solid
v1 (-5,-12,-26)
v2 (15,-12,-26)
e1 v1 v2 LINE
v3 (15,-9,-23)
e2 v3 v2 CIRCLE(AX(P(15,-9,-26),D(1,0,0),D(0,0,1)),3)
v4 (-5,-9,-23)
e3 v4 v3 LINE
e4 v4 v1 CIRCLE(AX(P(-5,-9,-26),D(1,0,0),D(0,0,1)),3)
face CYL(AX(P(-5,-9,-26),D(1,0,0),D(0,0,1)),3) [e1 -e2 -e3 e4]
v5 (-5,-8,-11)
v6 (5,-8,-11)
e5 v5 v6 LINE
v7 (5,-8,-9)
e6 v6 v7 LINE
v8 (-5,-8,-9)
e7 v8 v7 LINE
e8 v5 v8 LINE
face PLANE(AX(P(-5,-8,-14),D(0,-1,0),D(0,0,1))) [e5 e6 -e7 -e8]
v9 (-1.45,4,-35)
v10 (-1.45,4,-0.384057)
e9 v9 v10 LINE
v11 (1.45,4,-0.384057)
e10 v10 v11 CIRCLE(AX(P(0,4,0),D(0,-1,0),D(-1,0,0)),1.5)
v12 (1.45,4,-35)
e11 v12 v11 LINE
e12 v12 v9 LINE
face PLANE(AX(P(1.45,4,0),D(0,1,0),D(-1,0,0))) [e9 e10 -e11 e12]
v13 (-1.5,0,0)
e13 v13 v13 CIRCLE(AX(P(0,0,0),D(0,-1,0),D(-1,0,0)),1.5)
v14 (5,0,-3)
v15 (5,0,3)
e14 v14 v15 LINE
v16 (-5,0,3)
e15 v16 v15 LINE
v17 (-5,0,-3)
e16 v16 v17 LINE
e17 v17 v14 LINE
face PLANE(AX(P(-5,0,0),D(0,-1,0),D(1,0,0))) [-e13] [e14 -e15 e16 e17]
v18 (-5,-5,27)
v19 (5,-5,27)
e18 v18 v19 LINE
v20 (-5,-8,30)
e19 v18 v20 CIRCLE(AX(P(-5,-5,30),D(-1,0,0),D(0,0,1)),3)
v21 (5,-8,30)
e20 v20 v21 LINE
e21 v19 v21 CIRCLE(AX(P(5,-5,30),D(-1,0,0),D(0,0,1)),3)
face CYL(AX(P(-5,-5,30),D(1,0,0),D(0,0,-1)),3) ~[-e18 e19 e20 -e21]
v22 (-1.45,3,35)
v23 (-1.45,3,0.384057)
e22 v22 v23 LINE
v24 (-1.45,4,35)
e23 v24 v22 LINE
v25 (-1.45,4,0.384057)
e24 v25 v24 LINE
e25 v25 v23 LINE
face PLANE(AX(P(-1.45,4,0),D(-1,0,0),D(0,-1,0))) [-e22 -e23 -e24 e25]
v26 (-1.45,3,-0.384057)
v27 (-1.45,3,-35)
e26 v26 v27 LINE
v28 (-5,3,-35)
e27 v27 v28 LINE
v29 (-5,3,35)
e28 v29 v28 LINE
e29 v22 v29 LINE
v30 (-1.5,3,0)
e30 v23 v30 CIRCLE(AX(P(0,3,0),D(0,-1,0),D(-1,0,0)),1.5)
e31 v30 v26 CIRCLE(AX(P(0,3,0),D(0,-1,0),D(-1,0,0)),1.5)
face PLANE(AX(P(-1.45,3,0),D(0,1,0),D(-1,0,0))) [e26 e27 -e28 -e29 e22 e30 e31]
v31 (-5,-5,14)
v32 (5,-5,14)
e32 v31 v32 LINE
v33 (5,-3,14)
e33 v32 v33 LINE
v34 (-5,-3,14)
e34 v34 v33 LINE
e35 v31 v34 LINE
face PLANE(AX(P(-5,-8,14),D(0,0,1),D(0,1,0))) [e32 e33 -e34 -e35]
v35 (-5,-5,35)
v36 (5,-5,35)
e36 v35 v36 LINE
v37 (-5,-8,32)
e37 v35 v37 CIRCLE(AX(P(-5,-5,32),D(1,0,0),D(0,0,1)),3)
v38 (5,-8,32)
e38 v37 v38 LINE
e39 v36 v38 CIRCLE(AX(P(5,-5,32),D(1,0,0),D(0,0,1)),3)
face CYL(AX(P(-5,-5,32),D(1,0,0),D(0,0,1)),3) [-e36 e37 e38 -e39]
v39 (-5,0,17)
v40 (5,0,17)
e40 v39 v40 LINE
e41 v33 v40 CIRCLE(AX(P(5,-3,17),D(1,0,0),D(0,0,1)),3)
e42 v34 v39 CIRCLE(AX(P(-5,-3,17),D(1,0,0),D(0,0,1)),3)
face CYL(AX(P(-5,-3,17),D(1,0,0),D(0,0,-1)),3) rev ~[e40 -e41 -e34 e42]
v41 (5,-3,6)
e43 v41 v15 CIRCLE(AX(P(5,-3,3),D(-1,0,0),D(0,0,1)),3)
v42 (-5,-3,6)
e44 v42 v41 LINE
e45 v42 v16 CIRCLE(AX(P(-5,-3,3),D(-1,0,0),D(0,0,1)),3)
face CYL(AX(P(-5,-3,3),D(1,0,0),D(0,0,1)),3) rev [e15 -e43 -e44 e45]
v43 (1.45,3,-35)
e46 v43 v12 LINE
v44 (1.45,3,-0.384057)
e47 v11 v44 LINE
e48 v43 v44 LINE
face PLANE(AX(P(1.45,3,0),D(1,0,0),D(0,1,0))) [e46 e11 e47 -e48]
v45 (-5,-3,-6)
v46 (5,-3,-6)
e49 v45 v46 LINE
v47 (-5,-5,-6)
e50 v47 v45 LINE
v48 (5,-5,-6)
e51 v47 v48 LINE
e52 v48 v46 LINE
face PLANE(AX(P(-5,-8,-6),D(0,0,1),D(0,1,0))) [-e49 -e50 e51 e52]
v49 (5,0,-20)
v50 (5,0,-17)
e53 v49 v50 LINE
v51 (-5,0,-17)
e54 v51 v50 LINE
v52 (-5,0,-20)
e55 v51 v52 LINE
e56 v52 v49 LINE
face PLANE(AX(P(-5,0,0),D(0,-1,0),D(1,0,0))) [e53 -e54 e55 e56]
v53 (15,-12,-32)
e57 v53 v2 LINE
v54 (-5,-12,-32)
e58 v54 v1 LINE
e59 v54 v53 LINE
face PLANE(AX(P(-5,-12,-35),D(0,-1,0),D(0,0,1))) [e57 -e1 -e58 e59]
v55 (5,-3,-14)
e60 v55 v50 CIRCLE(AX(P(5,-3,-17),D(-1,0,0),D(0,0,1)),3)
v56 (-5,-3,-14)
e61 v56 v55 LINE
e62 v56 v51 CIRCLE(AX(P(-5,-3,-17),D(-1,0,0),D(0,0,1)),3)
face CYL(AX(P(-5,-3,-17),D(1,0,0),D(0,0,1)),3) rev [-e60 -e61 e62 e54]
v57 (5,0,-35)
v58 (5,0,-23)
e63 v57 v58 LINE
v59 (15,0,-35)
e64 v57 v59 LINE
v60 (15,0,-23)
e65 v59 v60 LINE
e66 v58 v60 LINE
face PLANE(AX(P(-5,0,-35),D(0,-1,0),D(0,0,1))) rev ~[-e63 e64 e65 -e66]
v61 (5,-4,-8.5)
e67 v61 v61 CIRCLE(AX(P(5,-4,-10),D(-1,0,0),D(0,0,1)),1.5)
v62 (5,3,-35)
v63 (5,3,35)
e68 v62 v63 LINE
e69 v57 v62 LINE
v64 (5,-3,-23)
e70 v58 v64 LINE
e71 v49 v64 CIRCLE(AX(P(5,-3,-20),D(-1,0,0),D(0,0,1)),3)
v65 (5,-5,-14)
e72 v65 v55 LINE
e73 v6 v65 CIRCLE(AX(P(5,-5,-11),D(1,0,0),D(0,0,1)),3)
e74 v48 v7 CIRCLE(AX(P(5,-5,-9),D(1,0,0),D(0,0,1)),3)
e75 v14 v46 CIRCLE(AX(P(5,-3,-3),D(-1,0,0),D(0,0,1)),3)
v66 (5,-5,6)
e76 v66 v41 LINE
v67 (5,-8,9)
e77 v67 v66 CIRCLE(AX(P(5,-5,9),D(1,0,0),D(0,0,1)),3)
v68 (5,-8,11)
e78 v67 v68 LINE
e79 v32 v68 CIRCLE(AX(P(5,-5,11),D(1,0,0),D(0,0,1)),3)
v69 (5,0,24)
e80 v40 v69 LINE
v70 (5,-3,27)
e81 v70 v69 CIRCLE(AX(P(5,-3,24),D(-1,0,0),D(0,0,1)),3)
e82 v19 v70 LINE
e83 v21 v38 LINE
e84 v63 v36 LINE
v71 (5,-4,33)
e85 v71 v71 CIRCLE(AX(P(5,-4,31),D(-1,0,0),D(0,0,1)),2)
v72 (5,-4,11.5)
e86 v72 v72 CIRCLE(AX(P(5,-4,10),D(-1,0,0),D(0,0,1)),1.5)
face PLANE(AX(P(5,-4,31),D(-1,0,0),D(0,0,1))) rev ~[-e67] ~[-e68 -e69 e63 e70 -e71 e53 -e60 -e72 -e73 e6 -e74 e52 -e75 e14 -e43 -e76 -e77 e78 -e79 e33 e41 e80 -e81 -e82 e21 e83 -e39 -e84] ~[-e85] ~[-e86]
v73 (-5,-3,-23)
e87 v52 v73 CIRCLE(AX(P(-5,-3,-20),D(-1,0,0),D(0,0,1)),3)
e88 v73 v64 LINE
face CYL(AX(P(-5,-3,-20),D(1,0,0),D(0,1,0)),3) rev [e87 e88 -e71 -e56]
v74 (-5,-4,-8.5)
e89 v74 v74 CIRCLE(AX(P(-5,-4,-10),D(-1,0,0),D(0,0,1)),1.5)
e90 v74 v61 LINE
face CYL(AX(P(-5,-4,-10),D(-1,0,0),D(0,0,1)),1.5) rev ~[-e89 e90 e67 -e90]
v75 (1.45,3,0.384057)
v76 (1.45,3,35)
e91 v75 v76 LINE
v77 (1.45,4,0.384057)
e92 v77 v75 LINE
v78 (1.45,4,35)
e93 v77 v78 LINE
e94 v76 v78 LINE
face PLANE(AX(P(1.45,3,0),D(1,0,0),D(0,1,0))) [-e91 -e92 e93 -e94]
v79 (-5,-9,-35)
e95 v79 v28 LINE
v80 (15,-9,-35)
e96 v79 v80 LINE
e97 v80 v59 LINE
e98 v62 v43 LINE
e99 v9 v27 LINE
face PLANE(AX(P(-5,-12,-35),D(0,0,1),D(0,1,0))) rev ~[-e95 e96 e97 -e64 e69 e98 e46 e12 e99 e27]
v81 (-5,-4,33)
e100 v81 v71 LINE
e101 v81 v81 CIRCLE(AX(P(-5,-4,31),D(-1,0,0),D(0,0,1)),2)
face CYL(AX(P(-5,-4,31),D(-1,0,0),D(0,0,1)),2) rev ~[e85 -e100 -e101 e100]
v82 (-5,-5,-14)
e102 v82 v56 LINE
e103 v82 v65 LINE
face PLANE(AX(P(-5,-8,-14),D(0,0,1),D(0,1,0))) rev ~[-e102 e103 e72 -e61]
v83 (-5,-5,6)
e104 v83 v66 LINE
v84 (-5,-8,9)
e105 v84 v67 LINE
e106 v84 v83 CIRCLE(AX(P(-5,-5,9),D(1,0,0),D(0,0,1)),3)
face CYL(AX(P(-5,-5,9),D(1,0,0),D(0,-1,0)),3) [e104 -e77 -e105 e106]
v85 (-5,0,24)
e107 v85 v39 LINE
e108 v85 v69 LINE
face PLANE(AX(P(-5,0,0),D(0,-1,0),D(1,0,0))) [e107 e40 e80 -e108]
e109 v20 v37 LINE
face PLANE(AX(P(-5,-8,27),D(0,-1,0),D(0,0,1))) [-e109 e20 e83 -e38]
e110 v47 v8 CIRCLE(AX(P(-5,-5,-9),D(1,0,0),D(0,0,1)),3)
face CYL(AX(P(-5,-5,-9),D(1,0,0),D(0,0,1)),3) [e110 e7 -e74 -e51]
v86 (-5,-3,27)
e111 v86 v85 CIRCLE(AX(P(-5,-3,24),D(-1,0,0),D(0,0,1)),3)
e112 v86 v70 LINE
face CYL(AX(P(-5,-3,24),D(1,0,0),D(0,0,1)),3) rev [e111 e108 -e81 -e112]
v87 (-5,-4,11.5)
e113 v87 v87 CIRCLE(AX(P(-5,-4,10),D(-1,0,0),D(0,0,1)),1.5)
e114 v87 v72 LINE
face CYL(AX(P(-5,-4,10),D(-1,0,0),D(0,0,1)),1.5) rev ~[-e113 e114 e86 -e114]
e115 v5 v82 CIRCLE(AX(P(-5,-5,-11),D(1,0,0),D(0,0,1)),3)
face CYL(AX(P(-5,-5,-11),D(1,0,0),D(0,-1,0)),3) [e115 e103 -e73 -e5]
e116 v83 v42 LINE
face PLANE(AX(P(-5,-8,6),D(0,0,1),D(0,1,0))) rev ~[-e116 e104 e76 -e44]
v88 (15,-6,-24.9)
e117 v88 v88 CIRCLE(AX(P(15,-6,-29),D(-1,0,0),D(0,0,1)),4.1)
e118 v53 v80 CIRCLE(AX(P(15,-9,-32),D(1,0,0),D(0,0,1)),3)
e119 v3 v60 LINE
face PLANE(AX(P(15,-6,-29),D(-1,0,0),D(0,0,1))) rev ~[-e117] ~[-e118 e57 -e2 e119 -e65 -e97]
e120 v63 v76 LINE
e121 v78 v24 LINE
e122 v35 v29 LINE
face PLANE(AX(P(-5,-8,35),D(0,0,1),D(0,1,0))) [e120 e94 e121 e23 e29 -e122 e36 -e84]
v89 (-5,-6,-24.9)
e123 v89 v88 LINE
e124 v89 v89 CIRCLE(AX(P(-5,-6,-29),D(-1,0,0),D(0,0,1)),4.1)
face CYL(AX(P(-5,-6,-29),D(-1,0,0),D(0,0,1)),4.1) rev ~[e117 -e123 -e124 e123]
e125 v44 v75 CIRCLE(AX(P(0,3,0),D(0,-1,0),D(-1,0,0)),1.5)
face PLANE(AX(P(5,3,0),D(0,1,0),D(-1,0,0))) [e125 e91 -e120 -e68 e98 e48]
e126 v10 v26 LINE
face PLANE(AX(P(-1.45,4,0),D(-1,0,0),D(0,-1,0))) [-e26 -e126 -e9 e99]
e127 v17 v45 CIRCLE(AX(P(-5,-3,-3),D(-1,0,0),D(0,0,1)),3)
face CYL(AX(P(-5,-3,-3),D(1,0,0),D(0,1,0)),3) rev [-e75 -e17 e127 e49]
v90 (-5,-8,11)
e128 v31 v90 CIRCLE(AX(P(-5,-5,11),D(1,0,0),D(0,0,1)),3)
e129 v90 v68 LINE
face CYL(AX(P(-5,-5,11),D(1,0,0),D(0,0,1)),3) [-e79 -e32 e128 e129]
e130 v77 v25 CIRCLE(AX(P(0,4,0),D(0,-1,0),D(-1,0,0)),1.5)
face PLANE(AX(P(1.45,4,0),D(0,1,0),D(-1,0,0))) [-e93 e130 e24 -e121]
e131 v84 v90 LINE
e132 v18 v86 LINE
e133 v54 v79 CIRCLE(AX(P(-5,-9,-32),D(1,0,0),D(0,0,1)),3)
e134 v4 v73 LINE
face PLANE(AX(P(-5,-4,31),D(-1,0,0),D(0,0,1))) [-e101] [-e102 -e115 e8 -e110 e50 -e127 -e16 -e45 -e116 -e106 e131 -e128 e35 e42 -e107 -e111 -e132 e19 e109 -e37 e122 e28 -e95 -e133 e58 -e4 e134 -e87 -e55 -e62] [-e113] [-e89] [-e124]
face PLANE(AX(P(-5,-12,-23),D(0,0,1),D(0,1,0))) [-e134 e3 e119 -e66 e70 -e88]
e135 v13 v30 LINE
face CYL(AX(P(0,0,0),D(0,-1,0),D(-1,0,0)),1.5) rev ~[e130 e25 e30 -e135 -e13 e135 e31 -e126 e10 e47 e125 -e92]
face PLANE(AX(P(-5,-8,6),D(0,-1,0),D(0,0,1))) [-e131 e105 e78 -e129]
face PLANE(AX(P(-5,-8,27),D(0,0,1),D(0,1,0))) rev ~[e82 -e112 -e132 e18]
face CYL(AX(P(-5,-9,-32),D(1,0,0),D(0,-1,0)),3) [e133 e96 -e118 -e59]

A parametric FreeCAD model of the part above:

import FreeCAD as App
import Part
import Sketcher
from FreeCAD import Vector


def edges_at(feature, points):
    """Names of the edges that pass closest to the given points."""
    edges = feature.Shape.Edges
    near = lambda p: min(range(len(edges)), key=lambda i: edges[i].distToShape(Part.Vertex(*p))[0])
    return sorted({f"Edge{near(p) + 1}" for p in points})


def add_polygon(sketch, points):
    """Adds a closed chain of lines whose ends are joined by coincident constraints."""
    first, n = sketch.GeometryCount, len(points)
    for a, b in zip(points, points[1:] + points[:1]):
        sketch.addGeometry(Part.LineSegment(App.Vector(*a, 0), App.Vector(*b, 0)), False)
    for i in range(n):
        sketch.addConstraint(Sketcher.Constraint("Coincident", first + i, 2, first + (i + 1) % n, 1))

doc = App.newDocument("Part")
body = doc.addObject("PartDesign::Body", "Body")

sketch1 = body.newObject("Sketcher::SketchObject", "Sketch")
sketch1.AttachmentSupport = (doc.getObject("XY_Plane"), [""])
sketch1.MapMode = "FlatFace"
add_polygon(sketch1, [(-5, 0), (5, 0), (5, 3), (1.45, 3), (1.45, 4), (-1.45, 4), (-1.45, 3), (-5, 3)])
sketch1.addConstraint(Sketcher.Constraint("Horizontal", 0))
sketch1.addConstraint(Sketcher.Constraint("Vertical", 1))
sketch1.addConstraint(Sketcher.Constraint("Horizontal", 2))
sketch1.addConstraint(Sketcher.Constraint("Vertical", 3))
sketch1.addConstraint(Sketcher.Constraint("Horizontal", 4))
sketch1.addConstraint(Sketcher.Constraint("Vertical", 5))
sketch1.addConstraint(Sketcher.Constraint("Horizontal", 6))
sketch1.addConstraint(Sketcher.Constraint("Vertical", 7))
sketch1.addConstraint(Sketcher.Constraint("Symmetric", 0, 2, 7, 2, -1, 1))
sketch1.addConstraint(Sketcher.Constraint("Symmetric", 2, 2, 5, 2, -2))
sketch1.addConstraint(Sketcher.Constraint("DistanceX", 0, 1, 0, 2, 10.0))
sketch1.addConstraint(Sketcher.Constraint("DistanceY", 1, 1, 1, 2, 3.0))
sketch1.addConstraint(Sketcher.Constraint("DistanceY", 3, 1, 3, 2, 1.0))
sketch1.addConstraint(Sketcher.Constraint("DistanceX", 4, 2, 4, 1, 2.9))
pad1 = body.newObject("PartDesign::Pad", "Pad")
pad1.Profile = sketch1
pad1.Length = 70
pad1.Midplane = True

sketch2 = body.newObject("Sketcher::SketchObject", "Sketch001")
sketch2.AttachmentSupport = (doc.getObject("XZ_Plane"), [""])
sketch2.MapMode = "FlatFace"
sketch2.addGeometry(Part.Circle(Vector(0, 0, 0), Vector(0, 0, 1), 1.5), False)
sketch2.addConstraint(Sketcher.Constraint("Coincident", 0, 3, -1, 1))
sketch2.addConstraint(Sketcher.Constraint("Diameter", 0, 3.0))
pocket1 = body.newObject("PartDesign::Pocket", "Pocket")
pocket1.Profile = sketch2
pocket1.Type = "ThroughAll"

sketch3 = body.newObject("Sketcher::SketchObject", "Sketch002")
sketch3.AttachmentSupport = (doc.getObject("YZ_Plane"), [""])
sketch3.MapMode = "FlatFace"
sketch3.AttachmentOffset = App.Placement(Vector(0, 0, -5), App.Rotation())
add_polygon(sketch3, [(0, -35), (-12, -35), (-12, -23), (0, -23)])
sketch3.addGeometry(Part.Circle(Vector(-6, -29, 0), Vector(0, 0, 1), 4.1), False)
sketch3.addConstraint(Sketcher.Constraint("Horizontal", 0))
sketch3.addConstraint(Sketcher.Constraint("Vertical", 1))
sketch3.addConstraint(Sketcher.Constraint("Horizontal", 2))
sketch3.addConstraint(Sketcher.Constraint("Vertical", 3))
sketch3.addConstraint(Sketcher.Constraint("PointOnObject", 2, 2, -2))
sketch3.addConstraint(Sketcher.Constraint("Equal", 2, 1))
sketch3.addConstraint(Sketcher.Constraint("Diameter", 4, 8.2))
sketch3.addConstraint(Sketcher.Constraint("DistanceX", 0, 2, 0, 1, 12.0))
sketch3.addConstraint(Sketcher.Constraint("DistanceX", 4, 3, -1, 1, 6.0))
sketch3.addConstraint(Sketcher.Constraint("DistanceY", 4, 3, -1, 1, 29.0))
sketch3.addConstraint(Sketcher.Constraint("DistanceY", 0, 2, -1, 1, 35.0))
pad2 = body.newObject("PartDesign::Pad", "Pad001")
pad2.Profile = sketch3
pad2.Length = 20

sketch4 = body.newObject("Sketcher::SketchObject", "Sketch003")
sketch4.AttachmentSupport = (doc.getObject("YZ_Plane"), [""])
sketch4.MapMode = "FlatFace"
sketch4.AttachmentOffset = App.Placement(Vector(0, 0, -5), App.Rotation())
add_polygon(sketch4, [(0, -14), (-8, -14), (-8, -6), (0, -6)])
sketch4.addGeometry(Part.Circle(Vector(-4, -10, 0), Vector(0, 0, 1), 1.5), False)
sketch4.addConstraint(Sketcher.Constraint("Horizontal", 0))
sketch4.addConstraint(Sketcher.Constraint("Vertical", 1))
sketch4.addConstraint(Sketcher.Constraint("Horizontal", 2))
sketch4.addConstraint(Sketcher.Constraint("Vertical", 3))
sketch4.addConstraint(Sketcher.Constraint("PointOnObject", 2, 2, -2))
sketch4.addConstraint(Sketcher.Constraint("Equal", 2, 1))
sketch4.addConstraint(Sketcher.Constraint("Diameter", 4, 3.0))
sketch4.addConstraint(Sketcher.Constraint("DistanceX", 0, 2, 0, 1, 8.0))
sketch4.addConstraint(Sketcher.Constraint("DistanceX", 4, 3, -1, 1, 4.0))
sketch4.addConstraint(Sketcher.Constraint("DistanceY", 4, 3, -1, 1, 10.0))
sketch4.addConstraint(Sketcher.Constraint("DistanceY", 0, 2, -1, 1, 14.0))
pad3 = body.newObject("PartDesign::Pad", "Pad002")
pad3.Profile = sketch4
pad3.Length = 10
doc.recompute()

linearpattern = body.newObject("PartDesign::LinearPattern", "LinearPattern")
linearpattern.Originals = [pad3]
linearpattern.Direction = (doc.getObject("Z_Axis"), [""])
linearpattern.Mode = "offset"
linearpattern.Offset = 20
linearpattern.Occurrences = 2
body.Tip = linearpattern

sketch5 = body.newObject("Sketcher::SketchObject", "Sketch004")
sketch5.AttachmentSupport = (doc.getObject("YZ_Plane"), [""])
sketch5.MapMode = "FlatFace"
sketch5.AttachmentOffset = App.Placement(Vector(0, 0, -5), App.Rotation())
add_polygon(sketch5, [(0, 27), (-8, 27), (-8, 35), (0, 35)])
sketch5.addGeometry(Part.Circle(Vector(-4, 31, 0), Vector(0, 0, 1), 2), False)
sketch5.addConstraint(Sketcher.Constraint("Horizontal", 0))
sketch5.addConstraint(Sketcher.Constraint("Vertical", 1))
sketch5.addConstraint(Sketcher.Constraint("Horizontal", 2))
sketch5.addConstraint(Sketcher.Constraint("Vertical", 3))
sketch5.addConstraint(Sketcher.Constraint("PointOnObject", 2, 2, -2))
sketch5.addConstraint(Sketcher.Constraint("Equal", 2, 1))
sketch5.addConstraint(Sketcher.Constraint("Diameter", 4, 4.0))
sketch5.addConstraint(Sketcher.Constraint("DistanceX", 0, 2, 0, 1, 8.0))
sketch5.addConstraint(Sketcher.Constraint("DistanceX", 4, 3, -1, 1, 4.0))
sketch5.addConstraint(Sketcher.Constraint("DistanceY", -1, 1, 4, 3, 31.0))
sketch5.addConstraint(Sketcher.Constraint("DistanceY", -1, 1, 0, 2, 27.0))
pad4 = body.newObject("PartDesign::Pad", "Pad003")
pad4.Profile = sketch5
pad4.Length = 10
doc.recompute()

fillet = body.newObject("PartDesign::Fillet", "Fillet")
fillet.Base = (pad4, edges_at(pad4, [
    (0, 0, -23),
    (5, -12, -35),
    (5, -12, -23),
    (0, 0, -6),
    (0, -8, -6),
    (0, -8, -14),
    (0, 0, -14),
    (0, 0, 14),
    (0, -8, 14),
    (0, -8, 6),
    (0, 0, 6),
    (0, -8, 35),
    (0, -8, 27),
    (0, 0, 27),
]))
fillet.Radius = 3

doc.recompute()
